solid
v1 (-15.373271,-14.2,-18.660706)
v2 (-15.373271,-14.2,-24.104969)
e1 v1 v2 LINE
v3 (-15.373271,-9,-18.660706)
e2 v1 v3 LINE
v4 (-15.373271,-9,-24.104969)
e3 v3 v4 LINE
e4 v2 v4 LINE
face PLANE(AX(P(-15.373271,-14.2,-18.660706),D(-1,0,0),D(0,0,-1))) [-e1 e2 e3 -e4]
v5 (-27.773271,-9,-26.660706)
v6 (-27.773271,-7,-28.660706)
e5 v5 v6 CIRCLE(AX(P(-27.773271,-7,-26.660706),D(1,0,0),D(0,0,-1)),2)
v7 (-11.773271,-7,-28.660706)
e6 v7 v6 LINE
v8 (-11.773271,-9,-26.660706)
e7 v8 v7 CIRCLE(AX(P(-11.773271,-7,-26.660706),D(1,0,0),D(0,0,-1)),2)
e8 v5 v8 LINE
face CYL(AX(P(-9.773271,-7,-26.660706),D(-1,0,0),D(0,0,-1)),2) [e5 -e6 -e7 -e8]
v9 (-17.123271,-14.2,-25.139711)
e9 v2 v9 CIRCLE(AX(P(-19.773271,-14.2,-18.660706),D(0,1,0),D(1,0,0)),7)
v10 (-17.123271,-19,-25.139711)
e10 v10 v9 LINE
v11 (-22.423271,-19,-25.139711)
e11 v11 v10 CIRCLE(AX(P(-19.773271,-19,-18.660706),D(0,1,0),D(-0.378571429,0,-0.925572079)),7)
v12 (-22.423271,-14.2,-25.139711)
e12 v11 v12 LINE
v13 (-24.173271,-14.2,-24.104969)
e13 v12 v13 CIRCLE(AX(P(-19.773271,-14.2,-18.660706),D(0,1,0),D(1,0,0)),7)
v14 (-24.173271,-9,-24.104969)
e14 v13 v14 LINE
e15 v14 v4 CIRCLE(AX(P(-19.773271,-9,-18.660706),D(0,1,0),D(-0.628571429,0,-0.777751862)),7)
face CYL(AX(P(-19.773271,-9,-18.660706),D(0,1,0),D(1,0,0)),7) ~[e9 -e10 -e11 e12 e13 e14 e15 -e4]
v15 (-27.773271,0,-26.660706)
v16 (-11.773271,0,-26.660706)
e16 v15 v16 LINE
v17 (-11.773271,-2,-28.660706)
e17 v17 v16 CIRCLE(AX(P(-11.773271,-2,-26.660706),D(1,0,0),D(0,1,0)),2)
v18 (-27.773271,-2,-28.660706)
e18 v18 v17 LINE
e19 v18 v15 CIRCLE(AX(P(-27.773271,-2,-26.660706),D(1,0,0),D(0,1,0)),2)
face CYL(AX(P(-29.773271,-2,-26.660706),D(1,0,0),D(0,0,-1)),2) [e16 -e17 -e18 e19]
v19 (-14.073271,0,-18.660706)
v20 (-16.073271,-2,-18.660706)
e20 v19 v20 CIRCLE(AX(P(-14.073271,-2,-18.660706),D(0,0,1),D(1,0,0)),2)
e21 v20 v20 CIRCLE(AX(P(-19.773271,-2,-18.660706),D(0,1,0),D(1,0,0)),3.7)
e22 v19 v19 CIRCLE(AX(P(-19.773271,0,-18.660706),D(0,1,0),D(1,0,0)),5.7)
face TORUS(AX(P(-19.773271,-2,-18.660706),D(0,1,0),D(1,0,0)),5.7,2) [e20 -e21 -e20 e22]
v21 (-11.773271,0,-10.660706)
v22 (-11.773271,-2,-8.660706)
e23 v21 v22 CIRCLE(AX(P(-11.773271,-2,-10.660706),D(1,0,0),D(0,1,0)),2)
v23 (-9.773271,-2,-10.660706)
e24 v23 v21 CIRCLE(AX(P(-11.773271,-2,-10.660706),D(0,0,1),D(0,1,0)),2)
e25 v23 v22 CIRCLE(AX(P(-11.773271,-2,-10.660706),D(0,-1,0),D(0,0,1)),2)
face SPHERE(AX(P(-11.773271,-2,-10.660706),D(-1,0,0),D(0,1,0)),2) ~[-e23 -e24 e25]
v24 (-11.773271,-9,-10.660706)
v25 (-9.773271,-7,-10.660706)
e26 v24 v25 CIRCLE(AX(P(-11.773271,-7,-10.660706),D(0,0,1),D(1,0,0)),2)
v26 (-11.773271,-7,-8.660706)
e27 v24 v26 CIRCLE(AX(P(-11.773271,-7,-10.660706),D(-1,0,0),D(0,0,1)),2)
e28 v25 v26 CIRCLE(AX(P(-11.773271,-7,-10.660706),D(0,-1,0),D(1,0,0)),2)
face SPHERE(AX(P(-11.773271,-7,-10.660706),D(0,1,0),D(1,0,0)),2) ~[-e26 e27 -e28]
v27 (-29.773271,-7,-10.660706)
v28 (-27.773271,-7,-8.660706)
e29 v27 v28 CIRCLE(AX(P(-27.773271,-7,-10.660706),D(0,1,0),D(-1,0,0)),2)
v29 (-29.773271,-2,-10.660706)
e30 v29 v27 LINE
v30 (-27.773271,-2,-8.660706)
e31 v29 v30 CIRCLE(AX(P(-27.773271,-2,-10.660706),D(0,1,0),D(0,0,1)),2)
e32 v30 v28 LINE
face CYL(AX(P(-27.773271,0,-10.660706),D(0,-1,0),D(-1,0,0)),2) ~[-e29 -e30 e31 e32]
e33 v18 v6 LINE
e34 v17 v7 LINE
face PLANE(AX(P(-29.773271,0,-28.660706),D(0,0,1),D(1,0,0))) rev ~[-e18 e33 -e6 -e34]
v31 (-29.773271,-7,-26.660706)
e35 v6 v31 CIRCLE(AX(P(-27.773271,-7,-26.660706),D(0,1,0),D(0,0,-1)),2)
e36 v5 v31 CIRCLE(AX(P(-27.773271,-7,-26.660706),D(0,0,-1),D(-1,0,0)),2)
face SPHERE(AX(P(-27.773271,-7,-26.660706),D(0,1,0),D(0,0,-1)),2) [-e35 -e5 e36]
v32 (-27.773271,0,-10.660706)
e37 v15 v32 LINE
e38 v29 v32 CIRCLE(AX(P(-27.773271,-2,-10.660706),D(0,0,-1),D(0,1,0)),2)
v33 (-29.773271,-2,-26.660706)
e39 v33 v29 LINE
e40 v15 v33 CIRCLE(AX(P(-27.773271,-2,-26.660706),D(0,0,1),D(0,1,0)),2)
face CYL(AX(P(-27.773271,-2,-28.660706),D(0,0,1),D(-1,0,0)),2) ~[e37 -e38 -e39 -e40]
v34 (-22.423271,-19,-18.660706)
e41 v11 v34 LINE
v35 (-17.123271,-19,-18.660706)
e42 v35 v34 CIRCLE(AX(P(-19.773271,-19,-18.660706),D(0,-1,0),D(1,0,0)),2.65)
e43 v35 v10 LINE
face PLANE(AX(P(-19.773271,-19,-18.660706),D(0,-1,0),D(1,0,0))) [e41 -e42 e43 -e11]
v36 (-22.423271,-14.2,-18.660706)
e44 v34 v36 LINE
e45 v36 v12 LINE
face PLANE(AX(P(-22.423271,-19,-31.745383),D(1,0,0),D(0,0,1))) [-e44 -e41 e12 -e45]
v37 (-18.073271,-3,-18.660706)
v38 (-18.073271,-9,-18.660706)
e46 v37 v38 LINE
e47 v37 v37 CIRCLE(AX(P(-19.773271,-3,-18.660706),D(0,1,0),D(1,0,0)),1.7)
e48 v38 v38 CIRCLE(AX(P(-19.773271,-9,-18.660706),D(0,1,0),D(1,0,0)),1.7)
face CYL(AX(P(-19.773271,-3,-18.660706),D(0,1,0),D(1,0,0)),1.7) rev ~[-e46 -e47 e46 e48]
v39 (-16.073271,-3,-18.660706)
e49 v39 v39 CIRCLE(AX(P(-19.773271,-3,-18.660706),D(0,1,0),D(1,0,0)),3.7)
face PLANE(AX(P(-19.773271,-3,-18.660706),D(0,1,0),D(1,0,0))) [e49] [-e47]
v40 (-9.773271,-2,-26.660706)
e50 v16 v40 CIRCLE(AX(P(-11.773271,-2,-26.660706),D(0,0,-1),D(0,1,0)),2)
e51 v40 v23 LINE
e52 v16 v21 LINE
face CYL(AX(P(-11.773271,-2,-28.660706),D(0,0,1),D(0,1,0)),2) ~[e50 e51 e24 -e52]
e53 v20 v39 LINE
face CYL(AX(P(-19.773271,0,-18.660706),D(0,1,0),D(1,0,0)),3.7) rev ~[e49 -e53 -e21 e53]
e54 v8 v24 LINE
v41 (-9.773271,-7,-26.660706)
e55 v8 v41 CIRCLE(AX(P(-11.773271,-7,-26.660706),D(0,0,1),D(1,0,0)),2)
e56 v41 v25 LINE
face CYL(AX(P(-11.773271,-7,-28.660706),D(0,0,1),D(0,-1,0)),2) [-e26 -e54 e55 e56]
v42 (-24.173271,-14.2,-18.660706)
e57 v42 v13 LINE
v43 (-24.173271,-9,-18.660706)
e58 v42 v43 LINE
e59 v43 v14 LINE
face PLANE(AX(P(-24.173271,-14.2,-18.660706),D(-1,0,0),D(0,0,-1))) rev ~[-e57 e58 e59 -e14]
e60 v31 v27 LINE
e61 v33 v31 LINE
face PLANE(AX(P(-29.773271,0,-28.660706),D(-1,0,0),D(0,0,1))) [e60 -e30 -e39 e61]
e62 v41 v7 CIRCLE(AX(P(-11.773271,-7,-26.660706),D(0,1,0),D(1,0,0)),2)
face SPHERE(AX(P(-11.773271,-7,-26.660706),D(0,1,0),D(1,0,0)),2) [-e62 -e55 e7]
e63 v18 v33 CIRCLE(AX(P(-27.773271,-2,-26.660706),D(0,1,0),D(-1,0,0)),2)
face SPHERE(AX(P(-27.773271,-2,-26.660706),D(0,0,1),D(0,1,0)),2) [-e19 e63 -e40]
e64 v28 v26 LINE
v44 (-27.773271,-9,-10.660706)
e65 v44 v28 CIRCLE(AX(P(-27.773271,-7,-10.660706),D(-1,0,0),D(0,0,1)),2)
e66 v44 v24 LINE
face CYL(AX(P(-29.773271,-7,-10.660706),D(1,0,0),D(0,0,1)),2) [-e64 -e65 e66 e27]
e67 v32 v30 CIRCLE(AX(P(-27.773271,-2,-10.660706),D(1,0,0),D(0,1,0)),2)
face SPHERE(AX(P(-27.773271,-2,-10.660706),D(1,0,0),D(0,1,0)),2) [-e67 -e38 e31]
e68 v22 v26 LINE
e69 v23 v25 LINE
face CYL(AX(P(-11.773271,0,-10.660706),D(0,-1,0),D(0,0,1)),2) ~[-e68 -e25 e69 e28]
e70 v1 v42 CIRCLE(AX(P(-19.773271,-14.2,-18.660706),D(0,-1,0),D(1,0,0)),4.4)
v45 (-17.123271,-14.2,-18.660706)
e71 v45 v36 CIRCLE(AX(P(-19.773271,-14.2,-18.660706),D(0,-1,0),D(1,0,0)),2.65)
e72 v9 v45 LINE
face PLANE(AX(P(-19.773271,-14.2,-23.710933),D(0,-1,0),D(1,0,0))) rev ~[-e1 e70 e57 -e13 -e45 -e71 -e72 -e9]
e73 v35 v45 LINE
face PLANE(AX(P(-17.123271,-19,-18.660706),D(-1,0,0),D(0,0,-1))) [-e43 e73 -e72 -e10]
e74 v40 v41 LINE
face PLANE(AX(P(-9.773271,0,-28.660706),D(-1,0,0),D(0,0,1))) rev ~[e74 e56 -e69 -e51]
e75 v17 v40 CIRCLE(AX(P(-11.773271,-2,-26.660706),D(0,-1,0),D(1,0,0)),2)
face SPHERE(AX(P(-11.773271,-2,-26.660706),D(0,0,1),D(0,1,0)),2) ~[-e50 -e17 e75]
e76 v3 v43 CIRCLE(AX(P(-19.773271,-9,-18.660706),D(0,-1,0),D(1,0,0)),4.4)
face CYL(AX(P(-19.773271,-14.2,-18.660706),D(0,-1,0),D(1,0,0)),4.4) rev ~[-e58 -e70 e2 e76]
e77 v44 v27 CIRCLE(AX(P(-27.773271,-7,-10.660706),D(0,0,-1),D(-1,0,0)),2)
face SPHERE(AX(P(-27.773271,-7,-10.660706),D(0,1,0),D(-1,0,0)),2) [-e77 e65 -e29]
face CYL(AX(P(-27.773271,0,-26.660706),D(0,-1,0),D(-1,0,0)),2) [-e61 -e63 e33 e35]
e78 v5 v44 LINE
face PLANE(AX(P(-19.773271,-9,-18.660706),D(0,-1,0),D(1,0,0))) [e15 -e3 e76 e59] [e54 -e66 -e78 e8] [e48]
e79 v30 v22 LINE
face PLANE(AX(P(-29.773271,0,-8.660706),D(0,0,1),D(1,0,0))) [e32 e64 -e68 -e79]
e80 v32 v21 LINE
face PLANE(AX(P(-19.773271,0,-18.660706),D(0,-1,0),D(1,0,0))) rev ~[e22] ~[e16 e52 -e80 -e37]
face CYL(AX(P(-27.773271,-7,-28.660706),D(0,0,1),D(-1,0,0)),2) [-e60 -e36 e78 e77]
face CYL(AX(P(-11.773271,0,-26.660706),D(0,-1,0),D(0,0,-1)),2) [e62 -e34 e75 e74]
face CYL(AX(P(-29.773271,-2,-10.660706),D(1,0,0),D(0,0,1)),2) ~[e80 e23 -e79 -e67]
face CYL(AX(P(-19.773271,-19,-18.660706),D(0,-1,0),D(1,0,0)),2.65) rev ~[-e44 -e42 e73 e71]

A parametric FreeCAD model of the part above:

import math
import FreeCAD as App
import Part
import Sketcher
from FreeCAD import Vector
Q = App.Units.Quantity


def edges_at(feature, points):
    """Names of the edges that pass closest to the given points."""
    edges = feature.Shape.Edges
    near = lambda p: min(range(len(edges)), key=lambda i: edges[i].distToShape(Part.Vertex(*p))[0])
    return sorted({f"Edge{near(p) + 1}" for p in points})


def add_polygon(sketch, points):
    """Adds a closed chain of lines whose ends are joined by coincident constraints."""
    first, n = sketch.GeometryCount, len(points)
    for a, b in zip(points, points[1:] + points[:1]):
        sketch.addGeometry(Part.LineSegment(App.Vector(*a, 0), App.Vector(*b, 0)), False)
    for i in range(n):
        sketch.addConstraint(Sketcher.Constraint("Coincident", first + i, 2, first + (i + 1) % n, 1))

doc = App.newDocument("Part")
body = doc.addObject("PartDesign::Body", "Body")

# Sketch on XZ plane
sketch1 = body.newObject("Sketcher::SketchObject", "Sketch")
sketch1.AttachmentSupport = (doc.getObject("XZ_Plane"), [""])
sketch1.MapMode = "FlatFace"
add_polygon(sketch1, [(-30, -9), (-30, -29), (-10, -29), (-10, -9)])  # lines 0-3
sketch1.addConstraint([
    Sketcher.Constraint("Vertical", 0),
    Sketcher.Constraint("Horizontal", 1),
    Sketcher.Constraint("Vertical", 2),
    Sketcher.Constraint("Horizontal", 3),
    Sketcher.Constraint("Equal", 3, 0),
    Sketcher.Constraint("DistanceX", 1, 1, 1, 2, Q("20 mm")),
    Sketcher.Constraint("DistanceX", 0, 2, -1, 1, Q("29.773271 mm")),
    Sketcher.Constraint("DistanceY", 0, 2, -1, 1, Q("28.660706 mm")),
])
pad1 = body.newObject("PartDesign::Pad", "Pad")
pad1.Profile = sketch1
pad1.Length = 9

# Sketch on XZ plane
sketch2 = body.newObject("Sketcher::SketchObject", "Sketch001")
sketch2.AttachmentSupport = (doc.getObject("XZ_Plane"), [""])
sketch2.MapMode = "FlatFace"
sketch2.AttachmentOffset = App.Placement(Vector(0, 0, 9), App.Rotation())
sketch2.addGeometry(Part.Circle(Vector(-20, -19, 0), Vector(0, 0, 1), 7), False)
sketch2.addConstraint([
    Sketcher.Constraint("Diameter", 0, Q("14 mm")),
    Sketcher.Constraint("DistanceX", 0, 3, -1, 1, Q("19.773271 mm")),
    Sketcher.Constraint("DistanceY", 0, 3, -1, 1, Q("18.660706 mm")),
])
pad2 = body.newObject("PartDesign::Pad", "Pad001")
pad2.Profile = sketch2
pad2.Length = 10

# Sketch on XZ plane
sketch3 = body.newObject("Sketcher::SketchObject", "Sketch002")
sketch3.AttachmentSupport = (doc.getObject("XZ_Plane"), [""])
sketch3.MapMode = "FlatFace"
sketch3.AttachmentOffset = App.Placement(Vector(0, 0, 19), App.Rotation())
sketch3.addGeometry([
    Part.LineSegment(Vector(-17.1, -31.7, 0), Vector(-17.1, -18.7, 0)),
    Part.ArcOfCircle(Part.Circle(Vector(-19.8, -18.7, 0), Vector(0, 0, 1), 2.6), math.radians(0), math.radians(180)),
    Part.LineSegment(Vector(-22.4, -18.7, 0), Vector(-22.4, -31.7, 0)),
    Part.LineSegment(Vector(-22.4, -31.7, 0), Vector(-17.1, -31.7, 0)),
], False)
sketch3.addConstraint([
    Sketcher.Constraint("Tangent", 0, 2, 1, 1),
    Sketcher.Constraint("Tangent", 1, 2, 2, 1),
    Sketcher.Constraint("Coincident", 2, 2, 3, 1),
    Sketcher.Constraint("Coincident", 3, 2, 0, 1),
    Sketcher.Constraint("Vertical", 0),
    Sketcher.Constraint("Vertical", 2),
    Sketcher.Constraint("Horizontal", 3),
    Sketcher.Constraint("Radius", 1, Q("2.65 mm")),
    Sketcher.Constraint("DistanceY", 0, 1, 0, 2, Q("13.084677 mm")),
    Sketcher.Constraint("DistanceX", 1, 3, -1, 1, Q("19.773271 mm")),
    Sketcher.Constraint("DistanceY", 1, 3, -1, 1, Q("18.660706 mm")),
])
pocket1 = body.newObject("PartDesign::Pocket", "Pocket")
pocket1.Profile = sketch3
pocket1.Length = 8

# Sketch on XY plane
sketch4 = body.newObject("Sketcher::SketchObject", "Sketch003")
sketch4.AttachmentSupport = (doc.getObject("XY_Plane"), [""])
sketch4.MapMode = "FlatFace"
sketch4.AttachmentOffset = App.Placement(Vector(0, 0, -28.660706), App.Rotation())
add_polygon(sketch4, [(-24, -14), (-24, -9), (-15, -9), (-15, -14)])  # lines 0-3
sketch4.addConstraint([
    Sketcher.Constraint("Vertical", 0),
    Sketcher.Constraint("Horizontal", 1),
    Sketcher.Constraint("Vertical", 2),
    Sketcher.Constraint("Horizontal", 3),
    Sketcher.Constraint("DistanceY", 0, 1, 0, 2, Q("5.2 mm")),
    Sketcher.Constraint("DistanceY", 0, 2, -1, 1, Q("9 mm")),
    Sketcher.Constraint("DistanceX", 1, 1, 1, 2, Q("8.75 mm")),
    Sketcher.Constraint("DistanceX", 0, 2, -1, 1, Q("24.148271 mm")),
])
pocket2 = body.newObject("PartDesign::Pocket", "Pocket001")
pocket2.Profile = sketch4
pocket2.Length = 1
pocket2.Reversed = True

# Sketch on XZ plane
sketch5 = body.newObject("Sketcher::SketchObject", "Sketch004")
sketch5.AttachmentSupport = (doc.getObject("XZ_Plane"), [""])
sketch5.MapMode = "FlatFace"
sketch5.addGeometry(Part.Circle(Vector(-19.8, -18.7, 0), Vector(0, 0, 1), 3.7), False)
sketch5.addConstraint([
    Sketcher.Constraint("Diameter", 0, Q("7.4 mm")),
    Sketcher.Constraint("DistanceX", 0, 3, -1, 1, Q("19.773271 mm")),
    Sketcher.Constraint("DistanceY", 0, 3, -1, 1, Q("18.660706 mm")),
])
pocket3 = body.newObject("PartDesign::Pocket", "Pocket002")
pocket3.Profile = sketch5
pocket3.Length = 3
pocket3.Reversed = True

# Sketch on XZ plane
sketch6 = body.newObject("Sketcher::SketchObject", "Sketch005")
sketch6.AttachmentSupport = (doc.getObject("XZ_Plane"), [""])
sketch6.MapMode = "FlatFace"
sketch6.AttachmentOffset = App.Placement(Vector(0, 0, 19), App.Rotation())
sketch6.addGeometry(Part.Circle(Vector(-19.8, -18.7, 0), Vector(0, 0, 1), 1.7), False)
sketch6.addConstraint([
    Sketcher.Constraint("Diameter", 0, Q("3.35 mm")),
    Sketcher.Constraint("DistanceX", 0, 3, -1, 1, Q("19.773271 mm")),
    Sketcher.Constraint("DistanceY", 0, 3, -1, 1, Q("18.660706 mm")),
])
pocket4 = body.newObject("PartDesign::Pocket", "Pocket003")
pocket4.Profile = sketch6
pocket4.Length = 5
doc.recompute()

fillet = body.newObject("PartDesign::Fillet", "Fillet")
fillet.Base = (pocket4, edges_at(pocket4, [
    (-19.773, 0, -8.661),
    (-9.773, 0, -18.661),
    (-29.773, 0, -18.661),
    (-19.773, 0, -28.661),
    (-23.473, 0, -18.661),
    (-9.773, -4.5, -28.661),
    (-9.773, -4.5, -8.661),
    (-9.773, -9, -18.661),
    (-29.773, -4.5, -28.661),
    (-19.773, -9, -28.661),
    (-19.773, -9, -28.661),
    (-19.773, -9, -28.661),
    (-29.773, -4.5, -8.661),
    (-29.773, -9, -18.661),
    (-19.773, -9, -8.661),
]))
fillet.Radius = 2

# Sketch on XZ plane
sketch7 = body.newObject("Sketcher::SketchObject", "Sketch006")
sketch7.AttachmentSupport = (doc.getObject("XZ_Plane"), [""])
sketch7.MapMode = "FlatFace"
sketch7.AttachmentOffset = App.Placement(Vector(0, 0, 14.2), App.Rotation())
sketch7.addGeometry([
    Part.ArcOfCircle(Part.Circle(Vector(-19.8, -18.7, 0), Vector(0, 0, 1), 4.4), math.radians(0), math.radians(180)),
    Part.LineSegment(Vector(-24.2, -18.7, 0), Vector(-24.2, -31.4, 0)),
    Part.LineSegment(Vector(-24.2, -31.4, 0), Vector(-15.4, -31.4, 0)),
    Part.LineSegment(Vector(-15.4, -31.4, 0), Vector(-15.4, -18.7, 0)),
], False)
sketch7.addConstraint([
    Sketcher.Constraint("Tangent", 0, 2, 1, 1),
    Sketcher.Constraint("Coincident", 1, 2, 2, 1),
    Sketcher.Constraint("Coincident", 2, 2, 3, 1),
    Sketcher.Constraint("Tangent", 3, 2, 0, 1),
    Sketcher.Constraint("Vertical", 1),
    Sketcher.Constraint("Horizontal", 2),
    Sketcher.Constraint("Vertical", 3),
    Sketcher.Constraint("Radius", 0, Q("4.4 mm")),
    Sketcher.Constraint("DistanceY", 1, 2, 1, 1, Q("12.694324 mm")),
    Sketcher.Constraint("DistanceX", 0, 3, -1, 1, Q("19.773271 mm")),
    Sketcher.Constraint("DistanceY", 1, 2, -1, 1, Q("31.35503 mm")),
])
pocket5 = body.newObject("PartDesign::Pocket", "Pocket004")
pocket5.Profile = sketch7
pocket5.Length = 5.2

# Sketch on XZ plane
sketch8 = body.newObject("Sketcher::SketchObject", "Sketch007")
sketch8.AttachmentSupport = (doc.getObject("XZ_Plane"), [""])
sketch8.MapMode = "FlatFace"
sketch8.AttachmentOffset = App.Placement(Vector(0, 0, 3), App.Rotation())
sketch8.addGeometry(Part.Circle(Vector(-19.8, -18.7, 0), Vector(0, 0, 1), 1.7), False)
sketch8.addConstraint([
    Sketcher.Constraint("Diameter", 0, Q("3.4 mm")),
    Sketcher.Constraint("DistanceX", 0, 3, -1, 1, Q("19.773271 mm")),
    Sketcher.Constraint("DistanceY", 0, 3, -1, 1, Q("18.660706 mm")),
])
pocket6 = body.newObject("PartDesign::Pocket", "Pocket005")
pocket6.Profile = sketch8
pocket6.Length = 10
pocket6.Reversed = True

doc.recompute()
